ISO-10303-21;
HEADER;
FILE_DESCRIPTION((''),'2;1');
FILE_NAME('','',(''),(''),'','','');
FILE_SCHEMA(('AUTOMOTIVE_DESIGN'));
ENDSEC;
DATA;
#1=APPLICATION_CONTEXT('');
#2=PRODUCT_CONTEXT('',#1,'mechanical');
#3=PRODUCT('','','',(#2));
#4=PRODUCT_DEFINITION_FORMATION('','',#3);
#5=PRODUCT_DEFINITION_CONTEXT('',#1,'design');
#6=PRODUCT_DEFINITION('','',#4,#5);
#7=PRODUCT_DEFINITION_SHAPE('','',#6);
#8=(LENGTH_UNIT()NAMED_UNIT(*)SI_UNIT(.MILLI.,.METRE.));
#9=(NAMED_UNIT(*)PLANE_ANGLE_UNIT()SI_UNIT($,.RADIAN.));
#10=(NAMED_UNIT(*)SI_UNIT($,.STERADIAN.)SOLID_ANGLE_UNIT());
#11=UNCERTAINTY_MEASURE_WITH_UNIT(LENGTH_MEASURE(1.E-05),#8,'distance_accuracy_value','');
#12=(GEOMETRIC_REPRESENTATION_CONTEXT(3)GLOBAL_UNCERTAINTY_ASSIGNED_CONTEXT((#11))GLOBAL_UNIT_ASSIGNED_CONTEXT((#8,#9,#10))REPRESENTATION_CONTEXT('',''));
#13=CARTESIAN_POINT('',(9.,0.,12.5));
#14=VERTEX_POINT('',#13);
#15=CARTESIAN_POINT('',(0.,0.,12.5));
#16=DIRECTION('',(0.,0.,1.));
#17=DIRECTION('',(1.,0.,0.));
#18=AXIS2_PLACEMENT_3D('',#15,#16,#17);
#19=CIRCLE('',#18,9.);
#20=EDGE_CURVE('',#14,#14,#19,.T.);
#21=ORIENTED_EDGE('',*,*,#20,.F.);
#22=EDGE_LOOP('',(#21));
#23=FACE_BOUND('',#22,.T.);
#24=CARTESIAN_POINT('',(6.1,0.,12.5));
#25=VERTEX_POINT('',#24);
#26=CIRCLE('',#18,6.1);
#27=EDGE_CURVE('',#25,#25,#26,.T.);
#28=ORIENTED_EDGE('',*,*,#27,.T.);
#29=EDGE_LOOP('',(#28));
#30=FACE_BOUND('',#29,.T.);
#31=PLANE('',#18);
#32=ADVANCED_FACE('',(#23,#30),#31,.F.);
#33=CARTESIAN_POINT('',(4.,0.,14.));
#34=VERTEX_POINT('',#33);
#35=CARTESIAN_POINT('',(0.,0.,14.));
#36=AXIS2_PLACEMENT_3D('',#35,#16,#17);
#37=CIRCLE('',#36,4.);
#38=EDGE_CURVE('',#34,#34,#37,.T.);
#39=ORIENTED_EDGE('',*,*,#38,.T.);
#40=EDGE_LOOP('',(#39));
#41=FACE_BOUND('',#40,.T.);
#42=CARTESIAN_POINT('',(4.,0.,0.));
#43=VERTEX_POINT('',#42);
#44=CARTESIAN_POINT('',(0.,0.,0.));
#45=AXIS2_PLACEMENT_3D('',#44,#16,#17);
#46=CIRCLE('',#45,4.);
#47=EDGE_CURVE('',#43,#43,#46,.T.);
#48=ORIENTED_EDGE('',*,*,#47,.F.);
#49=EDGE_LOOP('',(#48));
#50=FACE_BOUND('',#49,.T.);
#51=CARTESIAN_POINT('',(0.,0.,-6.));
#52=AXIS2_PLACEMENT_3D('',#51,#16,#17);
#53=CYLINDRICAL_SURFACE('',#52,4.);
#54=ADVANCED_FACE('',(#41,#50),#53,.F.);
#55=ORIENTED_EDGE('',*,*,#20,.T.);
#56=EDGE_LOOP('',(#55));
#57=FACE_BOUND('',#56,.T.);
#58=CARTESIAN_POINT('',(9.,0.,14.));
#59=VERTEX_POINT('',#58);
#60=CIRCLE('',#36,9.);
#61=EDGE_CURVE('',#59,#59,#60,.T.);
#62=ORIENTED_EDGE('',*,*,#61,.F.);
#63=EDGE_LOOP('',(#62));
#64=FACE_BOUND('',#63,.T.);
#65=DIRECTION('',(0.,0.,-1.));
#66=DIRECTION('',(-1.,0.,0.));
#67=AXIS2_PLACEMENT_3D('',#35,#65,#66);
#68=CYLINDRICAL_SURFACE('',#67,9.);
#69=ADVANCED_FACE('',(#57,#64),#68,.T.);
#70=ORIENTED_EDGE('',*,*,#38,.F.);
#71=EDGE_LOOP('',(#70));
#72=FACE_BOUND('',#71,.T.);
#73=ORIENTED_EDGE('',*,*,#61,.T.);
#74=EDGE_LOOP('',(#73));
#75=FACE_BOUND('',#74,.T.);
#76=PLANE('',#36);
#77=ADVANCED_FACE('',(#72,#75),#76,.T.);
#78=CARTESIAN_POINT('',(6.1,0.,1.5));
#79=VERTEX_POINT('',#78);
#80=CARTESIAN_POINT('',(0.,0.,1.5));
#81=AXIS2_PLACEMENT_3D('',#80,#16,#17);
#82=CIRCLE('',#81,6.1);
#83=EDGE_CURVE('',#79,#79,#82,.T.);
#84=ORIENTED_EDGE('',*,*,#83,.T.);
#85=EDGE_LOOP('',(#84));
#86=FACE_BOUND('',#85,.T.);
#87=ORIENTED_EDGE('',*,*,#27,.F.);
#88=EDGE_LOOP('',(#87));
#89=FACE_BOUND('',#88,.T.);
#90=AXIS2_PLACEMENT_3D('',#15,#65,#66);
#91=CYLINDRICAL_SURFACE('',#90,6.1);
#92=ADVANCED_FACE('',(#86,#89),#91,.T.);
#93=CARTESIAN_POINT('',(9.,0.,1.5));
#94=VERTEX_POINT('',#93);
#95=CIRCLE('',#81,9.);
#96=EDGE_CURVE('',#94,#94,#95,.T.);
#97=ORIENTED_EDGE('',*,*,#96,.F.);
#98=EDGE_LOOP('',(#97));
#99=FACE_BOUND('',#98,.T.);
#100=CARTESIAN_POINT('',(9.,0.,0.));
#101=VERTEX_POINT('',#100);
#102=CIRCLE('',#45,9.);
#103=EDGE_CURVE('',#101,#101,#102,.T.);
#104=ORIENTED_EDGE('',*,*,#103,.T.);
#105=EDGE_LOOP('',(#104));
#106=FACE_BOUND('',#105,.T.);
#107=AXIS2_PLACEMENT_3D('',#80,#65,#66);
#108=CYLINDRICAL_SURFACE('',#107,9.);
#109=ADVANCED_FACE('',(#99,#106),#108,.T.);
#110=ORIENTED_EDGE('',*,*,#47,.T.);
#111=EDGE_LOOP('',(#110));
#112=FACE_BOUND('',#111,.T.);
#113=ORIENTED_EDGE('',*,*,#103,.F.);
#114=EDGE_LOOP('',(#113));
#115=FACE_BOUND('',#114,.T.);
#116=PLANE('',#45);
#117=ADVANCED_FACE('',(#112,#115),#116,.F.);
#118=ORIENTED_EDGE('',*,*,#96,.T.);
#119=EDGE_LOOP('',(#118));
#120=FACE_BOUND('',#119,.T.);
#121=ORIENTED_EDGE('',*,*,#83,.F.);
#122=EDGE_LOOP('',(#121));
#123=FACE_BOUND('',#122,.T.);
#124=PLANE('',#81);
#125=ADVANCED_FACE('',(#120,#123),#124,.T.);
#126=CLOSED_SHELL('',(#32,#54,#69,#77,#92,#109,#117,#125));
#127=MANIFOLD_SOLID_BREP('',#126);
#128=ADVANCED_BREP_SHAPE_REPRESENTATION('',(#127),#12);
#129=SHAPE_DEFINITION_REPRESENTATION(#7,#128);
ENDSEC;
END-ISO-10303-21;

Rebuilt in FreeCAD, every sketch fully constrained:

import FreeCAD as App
import Part
import Sketcher
Q = App.Units.Quantity

doc = App.newDocument("Part")
body = doc.addObject("PartDesign::Body", "Body")

sketch1 = body.newObject("Sketcher::SketchObject", "Sketch")
sketch1.AttachmentSupport = (doc.getObject("XY_Plane"), [""])
sketch1.MapMode = "FlatFace"
sketch1.addGeometry(Part.Circle(App.Vector(0, 0, 0), App.Vector(0, 0, 1), 9), False)
sketch1.addConstraint([
    Sketcher.Constraint("Coincident", 0, 3, -1, 1),
    Sketcher.Constraint("Diameter", 0, Q("18 mm")),
])
pad1 = body.newObject("PartDesign::Pad", "Pad")
pad1.Profile = sketch1
pad1.Length = 1.5

sketch2 = body.newObject("Sketcher::SketchObject", "Sketch001")
sketch2.AttachmentSupport = (doc.getObject("XY_Plane"), [""])
sketch2.MapMode = "FlatFace"
sketch2.AttachmentOffset = App.Placement(App.Vector(0, 0, 1.5), App.Rotation())
sketch2.addGeometry(Part.Circle(App.Vector(0, 0, 0), App.Vector(0, 0, 1), 6.1), False)
sketch2.addConstraint([
    Sketcher.Constraint("Coincident", 0, 3, -1, 1),
    Sketcher.Constraint("Diameter", 0, Q("12.2 mm")),
])
pad2 = body.newObject("PartDesign::Pad", "Pad001")
pad2.Profile = sketch2
pad2.Length = 11

sketch3 = body.newObject("Sketcher::SketchObject", "Sketch002")
sketch3.AttachmentSupport = (doc.getObject("XY_Plane"), [""])
sketch3.MapMode = "FlatFace"
sketch3.AttachmentOffset = App.Placement(App.Vector(0, 0, 12.5), App.Rotation())
sketch3.addGeometry(Part.Circle(App.Vector(0, 0, 0), App.Vector(0, 0, 1), 9), False)
sketch3.addConstraint([
    Sketcher.Constraint("Coincident", 0, 3, -1, 1),
    Sketcher.Constraint("Diameter", 0, Q("18 mm")),
])
pad3 = body.newObject("PartDesign::Pad", "Pad002")
pad3.Profile = sketch3
pad3.Length = 1.5

sketch4 = body.newObject("Sketcher::SketchObject", "Sketch003")
sketch4.AttachmentSupport = (doc.getObject("XY_Plane"), [""])
sketch4.MapMode = "FlatFace"
sketch4.AttachmentOffset = App.Placement(App.Vector(0, 0, 14), App.Rotation())
sketch4.addGeometry(Part.Circle(App.Vector(0, 0, 0), App.Vector(0, 0, 1), 4), False)
sketch4.addConstraint([
    Sketcher.Constraint("Coincident", 0, 3, -1, 1),
    Sketcher.Constraint("Diameter", 0, Q("8 mm")),
])
pocket1 = body.newObject("PartDesign::Pocket", "Pocket")
pocket1.Profile = sketch4
pocket1.Length = 20

doc.recompute()
